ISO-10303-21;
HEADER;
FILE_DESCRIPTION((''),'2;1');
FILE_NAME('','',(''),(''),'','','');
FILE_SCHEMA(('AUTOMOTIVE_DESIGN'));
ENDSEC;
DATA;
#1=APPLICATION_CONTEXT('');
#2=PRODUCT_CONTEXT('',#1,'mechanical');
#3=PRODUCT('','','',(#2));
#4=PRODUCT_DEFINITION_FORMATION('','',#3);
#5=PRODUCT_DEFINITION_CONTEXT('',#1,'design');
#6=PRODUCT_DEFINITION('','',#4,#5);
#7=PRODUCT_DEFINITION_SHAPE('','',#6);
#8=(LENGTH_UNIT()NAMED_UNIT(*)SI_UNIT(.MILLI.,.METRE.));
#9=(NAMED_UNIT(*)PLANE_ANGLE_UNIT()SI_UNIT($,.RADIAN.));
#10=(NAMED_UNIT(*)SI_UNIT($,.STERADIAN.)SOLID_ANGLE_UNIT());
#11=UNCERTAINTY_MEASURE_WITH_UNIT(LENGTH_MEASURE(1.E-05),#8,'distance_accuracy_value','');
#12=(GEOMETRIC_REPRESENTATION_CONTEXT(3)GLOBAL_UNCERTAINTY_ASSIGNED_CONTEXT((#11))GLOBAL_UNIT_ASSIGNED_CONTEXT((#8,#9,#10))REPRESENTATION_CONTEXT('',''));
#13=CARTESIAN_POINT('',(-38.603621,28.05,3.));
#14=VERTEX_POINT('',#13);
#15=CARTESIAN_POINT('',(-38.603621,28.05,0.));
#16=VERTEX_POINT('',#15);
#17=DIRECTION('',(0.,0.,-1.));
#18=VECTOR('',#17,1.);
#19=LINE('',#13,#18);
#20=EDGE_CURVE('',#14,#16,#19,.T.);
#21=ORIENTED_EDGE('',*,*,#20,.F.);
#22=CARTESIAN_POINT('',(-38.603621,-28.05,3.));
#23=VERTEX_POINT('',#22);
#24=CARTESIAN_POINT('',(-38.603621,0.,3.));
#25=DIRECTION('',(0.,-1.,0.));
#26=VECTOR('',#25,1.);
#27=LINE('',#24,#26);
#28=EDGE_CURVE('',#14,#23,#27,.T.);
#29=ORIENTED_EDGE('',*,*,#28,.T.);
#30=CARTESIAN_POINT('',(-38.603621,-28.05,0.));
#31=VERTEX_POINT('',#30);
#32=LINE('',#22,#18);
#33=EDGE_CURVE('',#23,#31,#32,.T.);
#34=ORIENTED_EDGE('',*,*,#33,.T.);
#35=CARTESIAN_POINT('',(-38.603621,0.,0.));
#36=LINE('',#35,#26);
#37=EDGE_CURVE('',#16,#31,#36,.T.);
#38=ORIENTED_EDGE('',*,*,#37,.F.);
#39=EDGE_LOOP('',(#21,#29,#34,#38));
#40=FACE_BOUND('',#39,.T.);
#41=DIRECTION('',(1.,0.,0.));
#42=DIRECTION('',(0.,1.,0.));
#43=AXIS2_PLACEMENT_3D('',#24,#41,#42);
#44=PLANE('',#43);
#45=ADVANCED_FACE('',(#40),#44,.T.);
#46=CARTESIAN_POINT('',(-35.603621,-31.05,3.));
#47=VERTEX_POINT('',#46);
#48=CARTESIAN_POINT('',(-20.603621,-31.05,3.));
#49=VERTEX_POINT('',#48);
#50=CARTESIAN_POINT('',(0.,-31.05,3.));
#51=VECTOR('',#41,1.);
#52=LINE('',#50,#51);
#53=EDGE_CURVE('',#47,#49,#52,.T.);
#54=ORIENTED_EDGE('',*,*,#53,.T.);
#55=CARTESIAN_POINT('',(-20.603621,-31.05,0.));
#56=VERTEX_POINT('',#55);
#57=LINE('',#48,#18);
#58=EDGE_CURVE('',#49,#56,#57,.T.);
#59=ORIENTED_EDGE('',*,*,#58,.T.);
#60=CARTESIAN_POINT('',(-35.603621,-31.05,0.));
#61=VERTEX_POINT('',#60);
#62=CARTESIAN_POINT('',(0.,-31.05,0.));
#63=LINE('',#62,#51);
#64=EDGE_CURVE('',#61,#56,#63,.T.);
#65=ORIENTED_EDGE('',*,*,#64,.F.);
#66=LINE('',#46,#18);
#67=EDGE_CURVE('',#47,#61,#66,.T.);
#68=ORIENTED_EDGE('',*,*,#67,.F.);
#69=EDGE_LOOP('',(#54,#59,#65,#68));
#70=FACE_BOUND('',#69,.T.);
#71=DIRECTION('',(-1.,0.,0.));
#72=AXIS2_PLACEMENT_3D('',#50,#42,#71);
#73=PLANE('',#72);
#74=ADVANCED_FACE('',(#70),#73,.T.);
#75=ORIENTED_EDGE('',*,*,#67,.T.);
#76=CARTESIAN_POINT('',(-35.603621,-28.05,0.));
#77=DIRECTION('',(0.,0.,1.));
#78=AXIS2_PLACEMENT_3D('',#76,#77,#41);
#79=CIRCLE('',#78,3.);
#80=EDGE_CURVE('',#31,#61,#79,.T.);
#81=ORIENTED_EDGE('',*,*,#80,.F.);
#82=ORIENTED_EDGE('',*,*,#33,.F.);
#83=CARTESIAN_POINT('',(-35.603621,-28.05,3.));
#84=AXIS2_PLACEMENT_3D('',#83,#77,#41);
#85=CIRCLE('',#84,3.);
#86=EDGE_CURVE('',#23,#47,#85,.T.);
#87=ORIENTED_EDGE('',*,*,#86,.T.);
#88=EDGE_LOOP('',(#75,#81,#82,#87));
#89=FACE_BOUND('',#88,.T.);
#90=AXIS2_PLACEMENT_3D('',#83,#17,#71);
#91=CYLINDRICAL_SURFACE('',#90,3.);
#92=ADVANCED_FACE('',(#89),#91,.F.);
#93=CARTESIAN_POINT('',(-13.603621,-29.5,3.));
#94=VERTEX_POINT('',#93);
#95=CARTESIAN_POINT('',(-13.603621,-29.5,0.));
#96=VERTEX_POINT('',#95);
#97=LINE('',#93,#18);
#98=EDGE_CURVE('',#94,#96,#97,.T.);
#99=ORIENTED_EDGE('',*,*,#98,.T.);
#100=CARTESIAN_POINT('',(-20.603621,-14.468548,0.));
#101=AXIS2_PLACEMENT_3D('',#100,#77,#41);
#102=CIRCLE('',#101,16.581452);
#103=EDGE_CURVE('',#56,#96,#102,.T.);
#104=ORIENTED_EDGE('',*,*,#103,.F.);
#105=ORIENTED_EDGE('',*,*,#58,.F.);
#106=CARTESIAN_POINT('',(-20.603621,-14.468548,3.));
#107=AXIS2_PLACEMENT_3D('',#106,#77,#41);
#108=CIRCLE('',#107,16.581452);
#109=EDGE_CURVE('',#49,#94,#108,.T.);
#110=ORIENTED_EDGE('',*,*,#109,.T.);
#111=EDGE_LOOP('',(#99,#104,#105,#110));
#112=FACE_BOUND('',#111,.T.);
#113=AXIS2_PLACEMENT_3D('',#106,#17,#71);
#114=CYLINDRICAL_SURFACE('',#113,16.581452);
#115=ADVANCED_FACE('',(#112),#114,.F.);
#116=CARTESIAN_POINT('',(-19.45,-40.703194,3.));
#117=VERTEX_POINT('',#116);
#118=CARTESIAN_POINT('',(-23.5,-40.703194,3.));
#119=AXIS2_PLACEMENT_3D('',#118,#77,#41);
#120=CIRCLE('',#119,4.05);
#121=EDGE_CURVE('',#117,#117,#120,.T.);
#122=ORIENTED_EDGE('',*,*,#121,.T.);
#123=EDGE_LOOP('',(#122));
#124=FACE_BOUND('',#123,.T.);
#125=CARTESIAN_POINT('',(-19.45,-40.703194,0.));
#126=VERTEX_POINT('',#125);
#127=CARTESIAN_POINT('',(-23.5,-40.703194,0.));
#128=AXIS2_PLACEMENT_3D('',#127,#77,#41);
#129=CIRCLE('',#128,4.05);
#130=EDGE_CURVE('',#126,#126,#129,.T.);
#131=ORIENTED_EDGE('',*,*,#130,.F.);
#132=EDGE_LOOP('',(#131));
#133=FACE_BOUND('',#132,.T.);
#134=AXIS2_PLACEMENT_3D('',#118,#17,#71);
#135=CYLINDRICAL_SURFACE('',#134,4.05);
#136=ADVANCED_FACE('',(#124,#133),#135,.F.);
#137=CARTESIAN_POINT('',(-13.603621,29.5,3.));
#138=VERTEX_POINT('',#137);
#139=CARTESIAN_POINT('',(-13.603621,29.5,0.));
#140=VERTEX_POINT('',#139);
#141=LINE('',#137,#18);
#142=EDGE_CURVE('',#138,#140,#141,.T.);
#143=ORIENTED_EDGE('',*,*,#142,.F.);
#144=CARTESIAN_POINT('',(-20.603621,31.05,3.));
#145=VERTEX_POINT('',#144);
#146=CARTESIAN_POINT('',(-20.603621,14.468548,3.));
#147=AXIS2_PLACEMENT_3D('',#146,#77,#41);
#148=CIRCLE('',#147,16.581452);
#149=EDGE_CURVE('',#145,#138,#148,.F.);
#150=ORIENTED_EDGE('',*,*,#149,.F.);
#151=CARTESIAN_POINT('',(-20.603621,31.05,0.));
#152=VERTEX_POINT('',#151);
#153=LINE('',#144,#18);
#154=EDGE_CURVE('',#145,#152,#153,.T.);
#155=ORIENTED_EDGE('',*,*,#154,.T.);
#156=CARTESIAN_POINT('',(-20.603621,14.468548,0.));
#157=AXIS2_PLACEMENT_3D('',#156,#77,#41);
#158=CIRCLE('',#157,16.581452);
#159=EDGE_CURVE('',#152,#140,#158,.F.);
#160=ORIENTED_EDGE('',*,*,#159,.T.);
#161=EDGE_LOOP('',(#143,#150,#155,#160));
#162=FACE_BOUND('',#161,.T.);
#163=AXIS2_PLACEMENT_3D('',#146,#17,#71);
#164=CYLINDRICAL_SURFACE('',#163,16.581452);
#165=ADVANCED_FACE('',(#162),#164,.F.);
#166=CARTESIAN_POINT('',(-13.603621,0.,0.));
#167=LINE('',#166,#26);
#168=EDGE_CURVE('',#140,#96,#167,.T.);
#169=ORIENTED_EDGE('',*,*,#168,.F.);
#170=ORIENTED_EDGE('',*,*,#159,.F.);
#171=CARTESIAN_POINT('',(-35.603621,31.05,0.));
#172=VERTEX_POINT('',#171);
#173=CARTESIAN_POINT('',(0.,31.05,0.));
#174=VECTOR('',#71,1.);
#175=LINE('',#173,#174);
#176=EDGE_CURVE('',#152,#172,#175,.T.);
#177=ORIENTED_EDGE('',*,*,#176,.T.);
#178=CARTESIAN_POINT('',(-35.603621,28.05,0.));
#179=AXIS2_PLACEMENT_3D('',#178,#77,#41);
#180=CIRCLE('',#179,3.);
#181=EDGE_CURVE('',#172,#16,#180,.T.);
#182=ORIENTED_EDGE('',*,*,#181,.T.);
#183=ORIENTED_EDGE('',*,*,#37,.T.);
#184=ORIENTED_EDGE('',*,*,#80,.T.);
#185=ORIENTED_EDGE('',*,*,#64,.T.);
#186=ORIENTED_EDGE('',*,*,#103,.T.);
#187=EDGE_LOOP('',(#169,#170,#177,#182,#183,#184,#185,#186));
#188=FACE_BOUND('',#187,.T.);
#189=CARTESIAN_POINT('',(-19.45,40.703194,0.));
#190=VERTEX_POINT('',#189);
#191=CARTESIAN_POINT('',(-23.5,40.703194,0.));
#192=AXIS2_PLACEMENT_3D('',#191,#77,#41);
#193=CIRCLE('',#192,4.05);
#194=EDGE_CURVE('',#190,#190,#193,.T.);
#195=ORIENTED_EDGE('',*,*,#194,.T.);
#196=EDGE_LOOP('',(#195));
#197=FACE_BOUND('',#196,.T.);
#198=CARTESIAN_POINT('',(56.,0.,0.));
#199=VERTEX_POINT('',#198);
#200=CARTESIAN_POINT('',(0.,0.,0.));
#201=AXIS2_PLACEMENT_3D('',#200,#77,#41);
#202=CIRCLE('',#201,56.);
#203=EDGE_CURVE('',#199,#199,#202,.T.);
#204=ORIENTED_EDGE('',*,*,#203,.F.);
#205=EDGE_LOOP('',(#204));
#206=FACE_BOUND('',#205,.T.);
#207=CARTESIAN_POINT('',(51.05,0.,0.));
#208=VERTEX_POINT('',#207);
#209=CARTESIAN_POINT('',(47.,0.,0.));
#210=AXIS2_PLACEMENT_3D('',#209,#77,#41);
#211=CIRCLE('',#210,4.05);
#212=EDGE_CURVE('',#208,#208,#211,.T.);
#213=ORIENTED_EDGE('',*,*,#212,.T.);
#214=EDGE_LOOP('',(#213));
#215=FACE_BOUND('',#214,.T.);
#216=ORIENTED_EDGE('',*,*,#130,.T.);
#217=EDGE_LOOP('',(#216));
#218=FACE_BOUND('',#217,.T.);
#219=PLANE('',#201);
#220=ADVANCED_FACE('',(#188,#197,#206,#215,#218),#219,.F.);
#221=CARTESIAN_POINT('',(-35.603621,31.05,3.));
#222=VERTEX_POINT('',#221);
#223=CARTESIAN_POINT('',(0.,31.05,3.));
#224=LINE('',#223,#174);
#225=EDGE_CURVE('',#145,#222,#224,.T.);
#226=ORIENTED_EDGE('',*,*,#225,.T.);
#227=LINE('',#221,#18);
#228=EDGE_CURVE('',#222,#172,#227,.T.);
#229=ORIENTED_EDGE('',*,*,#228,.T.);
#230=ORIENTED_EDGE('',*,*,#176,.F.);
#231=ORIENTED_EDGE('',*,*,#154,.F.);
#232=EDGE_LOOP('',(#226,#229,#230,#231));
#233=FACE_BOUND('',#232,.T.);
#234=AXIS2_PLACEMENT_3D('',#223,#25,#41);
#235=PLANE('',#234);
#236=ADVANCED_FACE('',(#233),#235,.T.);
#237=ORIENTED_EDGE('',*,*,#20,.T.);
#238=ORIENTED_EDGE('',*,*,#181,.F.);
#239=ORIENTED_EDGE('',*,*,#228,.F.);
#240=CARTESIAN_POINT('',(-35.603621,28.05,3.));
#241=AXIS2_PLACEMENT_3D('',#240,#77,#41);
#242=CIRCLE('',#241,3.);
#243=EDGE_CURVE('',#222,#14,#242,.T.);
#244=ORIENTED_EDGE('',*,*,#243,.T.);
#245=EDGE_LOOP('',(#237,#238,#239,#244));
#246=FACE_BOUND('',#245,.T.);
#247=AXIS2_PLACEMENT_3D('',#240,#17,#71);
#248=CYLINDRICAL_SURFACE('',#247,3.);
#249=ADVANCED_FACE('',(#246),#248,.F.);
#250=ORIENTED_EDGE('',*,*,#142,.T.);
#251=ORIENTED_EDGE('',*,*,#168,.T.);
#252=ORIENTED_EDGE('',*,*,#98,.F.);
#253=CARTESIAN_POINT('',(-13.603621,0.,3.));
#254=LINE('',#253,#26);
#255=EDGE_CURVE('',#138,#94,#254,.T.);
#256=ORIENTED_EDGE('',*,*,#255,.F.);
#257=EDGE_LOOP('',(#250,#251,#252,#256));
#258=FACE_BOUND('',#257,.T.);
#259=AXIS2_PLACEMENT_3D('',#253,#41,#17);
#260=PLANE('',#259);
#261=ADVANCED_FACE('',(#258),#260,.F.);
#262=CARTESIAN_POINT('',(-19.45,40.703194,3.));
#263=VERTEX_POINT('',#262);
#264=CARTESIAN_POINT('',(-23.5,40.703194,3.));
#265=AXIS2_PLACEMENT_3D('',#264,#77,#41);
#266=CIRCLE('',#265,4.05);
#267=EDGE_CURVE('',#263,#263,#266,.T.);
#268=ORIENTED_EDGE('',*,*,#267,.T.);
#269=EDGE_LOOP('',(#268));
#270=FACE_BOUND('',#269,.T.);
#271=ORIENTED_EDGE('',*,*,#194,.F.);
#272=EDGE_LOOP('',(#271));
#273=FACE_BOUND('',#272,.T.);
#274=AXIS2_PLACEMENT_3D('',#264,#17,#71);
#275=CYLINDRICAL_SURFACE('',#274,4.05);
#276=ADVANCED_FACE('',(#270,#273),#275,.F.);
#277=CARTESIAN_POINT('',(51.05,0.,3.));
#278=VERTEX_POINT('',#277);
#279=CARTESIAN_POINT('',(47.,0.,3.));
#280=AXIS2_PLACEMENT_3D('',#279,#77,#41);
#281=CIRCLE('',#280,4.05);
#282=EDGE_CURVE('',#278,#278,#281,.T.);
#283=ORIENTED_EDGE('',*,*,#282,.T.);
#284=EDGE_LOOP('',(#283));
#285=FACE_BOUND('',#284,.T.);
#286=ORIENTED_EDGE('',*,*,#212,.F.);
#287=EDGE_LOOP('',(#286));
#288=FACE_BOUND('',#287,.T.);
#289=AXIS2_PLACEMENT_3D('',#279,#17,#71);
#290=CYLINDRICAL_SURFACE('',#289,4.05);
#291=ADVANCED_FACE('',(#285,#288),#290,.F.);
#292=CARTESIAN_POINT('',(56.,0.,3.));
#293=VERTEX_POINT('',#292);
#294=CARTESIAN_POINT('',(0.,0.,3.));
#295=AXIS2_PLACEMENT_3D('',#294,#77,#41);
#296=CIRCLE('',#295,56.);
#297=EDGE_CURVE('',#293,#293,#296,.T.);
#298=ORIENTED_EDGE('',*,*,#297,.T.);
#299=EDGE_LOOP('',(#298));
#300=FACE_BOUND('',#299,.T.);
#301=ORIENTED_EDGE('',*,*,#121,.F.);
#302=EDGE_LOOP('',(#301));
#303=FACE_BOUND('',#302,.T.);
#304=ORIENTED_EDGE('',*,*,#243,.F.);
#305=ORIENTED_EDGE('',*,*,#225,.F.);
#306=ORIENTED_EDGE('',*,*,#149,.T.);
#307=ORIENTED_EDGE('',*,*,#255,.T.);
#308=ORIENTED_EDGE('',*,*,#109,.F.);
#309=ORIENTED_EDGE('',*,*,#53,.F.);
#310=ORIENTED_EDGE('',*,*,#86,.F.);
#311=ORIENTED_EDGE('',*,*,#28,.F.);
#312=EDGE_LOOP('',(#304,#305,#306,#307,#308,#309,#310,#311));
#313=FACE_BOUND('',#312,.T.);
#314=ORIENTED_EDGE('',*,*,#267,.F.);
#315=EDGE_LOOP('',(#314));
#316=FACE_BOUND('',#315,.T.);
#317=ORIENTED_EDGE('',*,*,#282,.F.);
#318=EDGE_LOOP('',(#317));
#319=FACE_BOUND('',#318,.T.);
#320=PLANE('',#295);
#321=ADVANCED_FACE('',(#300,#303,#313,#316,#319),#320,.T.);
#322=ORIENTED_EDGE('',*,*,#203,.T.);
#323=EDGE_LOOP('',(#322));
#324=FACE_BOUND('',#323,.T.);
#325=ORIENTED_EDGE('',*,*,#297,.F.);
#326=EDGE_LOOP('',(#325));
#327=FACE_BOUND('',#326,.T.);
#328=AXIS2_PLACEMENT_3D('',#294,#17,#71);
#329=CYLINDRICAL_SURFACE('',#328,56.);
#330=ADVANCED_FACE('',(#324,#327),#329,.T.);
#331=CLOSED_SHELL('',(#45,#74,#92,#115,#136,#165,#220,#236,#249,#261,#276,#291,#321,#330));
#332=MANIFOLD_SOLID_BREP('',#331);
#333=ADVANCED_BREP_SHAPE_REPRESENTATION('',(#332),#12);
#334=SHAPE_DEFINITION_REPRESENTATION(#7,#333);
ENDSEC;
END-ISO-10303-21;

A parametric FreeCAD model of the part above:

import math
import FreeCAD as App
import Part
import Sketcher

V = App.Vector
Q = App.Units.Quantity

doc = App.newDocument("Part")
params = doc.addObject("Spreadsheet::Sheet", "Params")
for row, (alias, value) in enumerate([
    ("sketch1_diameter", "112 mm"),
    ("sketch1_radius", "3 mm"),
    ("sketch1_diameter2", "8.1 mm"),
    ("sketch1_width", "15 mm"),
    ("sketch1_height", "59 mm"),
    ("pad1_length", "3 mm"),
], start=1):
    params.set(f"A{row}", alias)
    params.set(f"B{row}", "=" + value)
    params.setAlias(f"B{row}", alias)

body = doc.addObject("PartDesign::Body", "Body")

# Sketch on XY plane
sketch1 = doc.addObject("Sketcher::SketchObject", "Sketch")
body.addObject(sketch1)
sketch1.AttachmentSupport = (doc.XY_Plane, [""])
sketch1.MapMode = "FlatFace"
sketch1.addGeometry([
    Part.Circle(V(0, 0, 0), V(0, 0, 1), 56),  # 0
    Part.Circle(V(-23.5, -40.7, 0), V(0, 0, 1), 4),  # 1
    Part.LineSegment(V(-35.6, 31.1, 0), V(-20.6, 31.1, 0)),  # 2
    Part.ArcOfCircle(Part.Circle(V(-20.6, 14.5, 0), V(0, 0, 1), 16.6), math.radians(65), math.radians(90)),  # 3
    Part.LineSegment(V(-13.6, 29.5, 0), V(-13.6, -29.5, 0)),  # 4
    Part.ArcOfCircle(Part.Circle(V(-20.6, -14.5, 0), V(0, 0, 1), 16.6), math.radians(-90), math.radians(-65)),  # 5
    Part.LineSegment(V(-20.6, -31.1, 0), V(-35.6, -31.1, 0)),  # 6
    Part.ArcOfCircle(Part.Circle(V(-35.6, -28.1, 0), V(0, 0, 1), 3), math.radians(180), math.radians(270)),  # 7
    Part.LineSegment(V(-38.6, -28.1, 0), V(-38.6, 28.1, 0)),  # 8
    Part.ArcOfCircle(Part.Circle(V(-35.6, 28.1, 0), V(0, 0, 1), 3), math.radians(90), math.radians(180)),  # 9
    Part.Circle(V(-23.5, 40.7, 0), V(0, 0, 1), 4),  # 10
    Part.Circle(V(47, 0, 0), V(0, 0, 1), 4),  # 11
], False)
sketch1.addConstraint([
    Sketcher.Constraint("Tangent", 2, 2, 3, 2),
    Sketcher.Constraint("Coincident", 3, 1, 4, 1),
    Sketcher.Constraint("Coincident", 4, 2, 5, 2),
    Sketcher.Constraint("Tangent", 5, 1, 6, 1),
    Sketcher.Constraint("Tangent", 6, 2, 7, 2),
    Sketcher.Constraint("Tangent", 7, 1, 8, 1),
    Sketcher.Constraint("Tangent", 8, 2, 9, 2),
    Sketcher.Constraint("Tangent", 9, 1, 2, 1),
    Sketcher.Constraint("Horizontal", 2),
    Sketcher.Constraint("Vertical", 4),
    Sketcher.Constraint("Horizontal", 6),
    Sketcher.Constraint("Vertical", 8),
    Sketcher.Constraint("Coincident", 0, 3, -1, 1),
    Sketcher.Constraint("Equal", 3, 5),
    Sketcher.Constraint("Equal", 7, 9),
    Sketcher.Constraint("Equal", 1, 10),
    Sketcher.Constraint("Equal", 10, 11),
    Sketcher.Constraint("Symmetric", 3, 3, 5, 3, -1),
    Sketcher.Constraint("Symmetric", 1, 3, 10, 3, -1),
    Sketcher.Constraint("PointOnObject", 11, 3, -1),
    Sketcher.Constraint("Diameter", 0, Q("112 mm")),
    Sketcher.Constraint("Radius", 7, Q("3 mm")),
    Sketcher.Constraint("Diameter", 1, Q("8.1 mm")),
    Sketcher.Constraint("DistanceX", 2, 1, 2, 2, Q("15 mm")),
    Sketcher.Constraint("DistanceY", 4, 2, 4, 1, Q("59 mm")),
    Sketcher.Constraint("DistanceY", 8, 1, 8, 2, Q("56.1 mm")),
    Sketcher.Constraint("DistanceX", -1, 1, 11, 3, Q("47 mm")),
    Sketcher.Constraint("DistanceX", 2, 2, 3, 1, Q("7 mm")),
    Sketcher.Constraint("DistanceX", 1, 3, -1, 1, Q("23.5 mm")),
    Sketcher.Constraint("DistanceX", 3, 3, -1, 1, Q("20.603621 mm")),
    Sketcher.Constraint("DistanceY", 1, 3, -1, 1, Q("40.703194 mm")),
])
sketch1.setExpression("Constraints[20]", "Params.sketch1_diameter")
sketch1.setExpression("Constraints[21]", "Params.sketch1_radius")
sketch1.setExpression("Constraints[22]", "Params.sketch1_diameter2")
sketch1.setExpression("Constraints[23]", "Params.sketch1_width")
sketch1.setExpression("Constraints[24]", "Params.sketch1_height")
pad1 = doc.addObject("PartDesign::Pad", "Pad")
body.addObject(pad1)
pad1.Profile = sketch1
pad1.setExpression("Length", "Params.pad1_length")

doc.recompute()
